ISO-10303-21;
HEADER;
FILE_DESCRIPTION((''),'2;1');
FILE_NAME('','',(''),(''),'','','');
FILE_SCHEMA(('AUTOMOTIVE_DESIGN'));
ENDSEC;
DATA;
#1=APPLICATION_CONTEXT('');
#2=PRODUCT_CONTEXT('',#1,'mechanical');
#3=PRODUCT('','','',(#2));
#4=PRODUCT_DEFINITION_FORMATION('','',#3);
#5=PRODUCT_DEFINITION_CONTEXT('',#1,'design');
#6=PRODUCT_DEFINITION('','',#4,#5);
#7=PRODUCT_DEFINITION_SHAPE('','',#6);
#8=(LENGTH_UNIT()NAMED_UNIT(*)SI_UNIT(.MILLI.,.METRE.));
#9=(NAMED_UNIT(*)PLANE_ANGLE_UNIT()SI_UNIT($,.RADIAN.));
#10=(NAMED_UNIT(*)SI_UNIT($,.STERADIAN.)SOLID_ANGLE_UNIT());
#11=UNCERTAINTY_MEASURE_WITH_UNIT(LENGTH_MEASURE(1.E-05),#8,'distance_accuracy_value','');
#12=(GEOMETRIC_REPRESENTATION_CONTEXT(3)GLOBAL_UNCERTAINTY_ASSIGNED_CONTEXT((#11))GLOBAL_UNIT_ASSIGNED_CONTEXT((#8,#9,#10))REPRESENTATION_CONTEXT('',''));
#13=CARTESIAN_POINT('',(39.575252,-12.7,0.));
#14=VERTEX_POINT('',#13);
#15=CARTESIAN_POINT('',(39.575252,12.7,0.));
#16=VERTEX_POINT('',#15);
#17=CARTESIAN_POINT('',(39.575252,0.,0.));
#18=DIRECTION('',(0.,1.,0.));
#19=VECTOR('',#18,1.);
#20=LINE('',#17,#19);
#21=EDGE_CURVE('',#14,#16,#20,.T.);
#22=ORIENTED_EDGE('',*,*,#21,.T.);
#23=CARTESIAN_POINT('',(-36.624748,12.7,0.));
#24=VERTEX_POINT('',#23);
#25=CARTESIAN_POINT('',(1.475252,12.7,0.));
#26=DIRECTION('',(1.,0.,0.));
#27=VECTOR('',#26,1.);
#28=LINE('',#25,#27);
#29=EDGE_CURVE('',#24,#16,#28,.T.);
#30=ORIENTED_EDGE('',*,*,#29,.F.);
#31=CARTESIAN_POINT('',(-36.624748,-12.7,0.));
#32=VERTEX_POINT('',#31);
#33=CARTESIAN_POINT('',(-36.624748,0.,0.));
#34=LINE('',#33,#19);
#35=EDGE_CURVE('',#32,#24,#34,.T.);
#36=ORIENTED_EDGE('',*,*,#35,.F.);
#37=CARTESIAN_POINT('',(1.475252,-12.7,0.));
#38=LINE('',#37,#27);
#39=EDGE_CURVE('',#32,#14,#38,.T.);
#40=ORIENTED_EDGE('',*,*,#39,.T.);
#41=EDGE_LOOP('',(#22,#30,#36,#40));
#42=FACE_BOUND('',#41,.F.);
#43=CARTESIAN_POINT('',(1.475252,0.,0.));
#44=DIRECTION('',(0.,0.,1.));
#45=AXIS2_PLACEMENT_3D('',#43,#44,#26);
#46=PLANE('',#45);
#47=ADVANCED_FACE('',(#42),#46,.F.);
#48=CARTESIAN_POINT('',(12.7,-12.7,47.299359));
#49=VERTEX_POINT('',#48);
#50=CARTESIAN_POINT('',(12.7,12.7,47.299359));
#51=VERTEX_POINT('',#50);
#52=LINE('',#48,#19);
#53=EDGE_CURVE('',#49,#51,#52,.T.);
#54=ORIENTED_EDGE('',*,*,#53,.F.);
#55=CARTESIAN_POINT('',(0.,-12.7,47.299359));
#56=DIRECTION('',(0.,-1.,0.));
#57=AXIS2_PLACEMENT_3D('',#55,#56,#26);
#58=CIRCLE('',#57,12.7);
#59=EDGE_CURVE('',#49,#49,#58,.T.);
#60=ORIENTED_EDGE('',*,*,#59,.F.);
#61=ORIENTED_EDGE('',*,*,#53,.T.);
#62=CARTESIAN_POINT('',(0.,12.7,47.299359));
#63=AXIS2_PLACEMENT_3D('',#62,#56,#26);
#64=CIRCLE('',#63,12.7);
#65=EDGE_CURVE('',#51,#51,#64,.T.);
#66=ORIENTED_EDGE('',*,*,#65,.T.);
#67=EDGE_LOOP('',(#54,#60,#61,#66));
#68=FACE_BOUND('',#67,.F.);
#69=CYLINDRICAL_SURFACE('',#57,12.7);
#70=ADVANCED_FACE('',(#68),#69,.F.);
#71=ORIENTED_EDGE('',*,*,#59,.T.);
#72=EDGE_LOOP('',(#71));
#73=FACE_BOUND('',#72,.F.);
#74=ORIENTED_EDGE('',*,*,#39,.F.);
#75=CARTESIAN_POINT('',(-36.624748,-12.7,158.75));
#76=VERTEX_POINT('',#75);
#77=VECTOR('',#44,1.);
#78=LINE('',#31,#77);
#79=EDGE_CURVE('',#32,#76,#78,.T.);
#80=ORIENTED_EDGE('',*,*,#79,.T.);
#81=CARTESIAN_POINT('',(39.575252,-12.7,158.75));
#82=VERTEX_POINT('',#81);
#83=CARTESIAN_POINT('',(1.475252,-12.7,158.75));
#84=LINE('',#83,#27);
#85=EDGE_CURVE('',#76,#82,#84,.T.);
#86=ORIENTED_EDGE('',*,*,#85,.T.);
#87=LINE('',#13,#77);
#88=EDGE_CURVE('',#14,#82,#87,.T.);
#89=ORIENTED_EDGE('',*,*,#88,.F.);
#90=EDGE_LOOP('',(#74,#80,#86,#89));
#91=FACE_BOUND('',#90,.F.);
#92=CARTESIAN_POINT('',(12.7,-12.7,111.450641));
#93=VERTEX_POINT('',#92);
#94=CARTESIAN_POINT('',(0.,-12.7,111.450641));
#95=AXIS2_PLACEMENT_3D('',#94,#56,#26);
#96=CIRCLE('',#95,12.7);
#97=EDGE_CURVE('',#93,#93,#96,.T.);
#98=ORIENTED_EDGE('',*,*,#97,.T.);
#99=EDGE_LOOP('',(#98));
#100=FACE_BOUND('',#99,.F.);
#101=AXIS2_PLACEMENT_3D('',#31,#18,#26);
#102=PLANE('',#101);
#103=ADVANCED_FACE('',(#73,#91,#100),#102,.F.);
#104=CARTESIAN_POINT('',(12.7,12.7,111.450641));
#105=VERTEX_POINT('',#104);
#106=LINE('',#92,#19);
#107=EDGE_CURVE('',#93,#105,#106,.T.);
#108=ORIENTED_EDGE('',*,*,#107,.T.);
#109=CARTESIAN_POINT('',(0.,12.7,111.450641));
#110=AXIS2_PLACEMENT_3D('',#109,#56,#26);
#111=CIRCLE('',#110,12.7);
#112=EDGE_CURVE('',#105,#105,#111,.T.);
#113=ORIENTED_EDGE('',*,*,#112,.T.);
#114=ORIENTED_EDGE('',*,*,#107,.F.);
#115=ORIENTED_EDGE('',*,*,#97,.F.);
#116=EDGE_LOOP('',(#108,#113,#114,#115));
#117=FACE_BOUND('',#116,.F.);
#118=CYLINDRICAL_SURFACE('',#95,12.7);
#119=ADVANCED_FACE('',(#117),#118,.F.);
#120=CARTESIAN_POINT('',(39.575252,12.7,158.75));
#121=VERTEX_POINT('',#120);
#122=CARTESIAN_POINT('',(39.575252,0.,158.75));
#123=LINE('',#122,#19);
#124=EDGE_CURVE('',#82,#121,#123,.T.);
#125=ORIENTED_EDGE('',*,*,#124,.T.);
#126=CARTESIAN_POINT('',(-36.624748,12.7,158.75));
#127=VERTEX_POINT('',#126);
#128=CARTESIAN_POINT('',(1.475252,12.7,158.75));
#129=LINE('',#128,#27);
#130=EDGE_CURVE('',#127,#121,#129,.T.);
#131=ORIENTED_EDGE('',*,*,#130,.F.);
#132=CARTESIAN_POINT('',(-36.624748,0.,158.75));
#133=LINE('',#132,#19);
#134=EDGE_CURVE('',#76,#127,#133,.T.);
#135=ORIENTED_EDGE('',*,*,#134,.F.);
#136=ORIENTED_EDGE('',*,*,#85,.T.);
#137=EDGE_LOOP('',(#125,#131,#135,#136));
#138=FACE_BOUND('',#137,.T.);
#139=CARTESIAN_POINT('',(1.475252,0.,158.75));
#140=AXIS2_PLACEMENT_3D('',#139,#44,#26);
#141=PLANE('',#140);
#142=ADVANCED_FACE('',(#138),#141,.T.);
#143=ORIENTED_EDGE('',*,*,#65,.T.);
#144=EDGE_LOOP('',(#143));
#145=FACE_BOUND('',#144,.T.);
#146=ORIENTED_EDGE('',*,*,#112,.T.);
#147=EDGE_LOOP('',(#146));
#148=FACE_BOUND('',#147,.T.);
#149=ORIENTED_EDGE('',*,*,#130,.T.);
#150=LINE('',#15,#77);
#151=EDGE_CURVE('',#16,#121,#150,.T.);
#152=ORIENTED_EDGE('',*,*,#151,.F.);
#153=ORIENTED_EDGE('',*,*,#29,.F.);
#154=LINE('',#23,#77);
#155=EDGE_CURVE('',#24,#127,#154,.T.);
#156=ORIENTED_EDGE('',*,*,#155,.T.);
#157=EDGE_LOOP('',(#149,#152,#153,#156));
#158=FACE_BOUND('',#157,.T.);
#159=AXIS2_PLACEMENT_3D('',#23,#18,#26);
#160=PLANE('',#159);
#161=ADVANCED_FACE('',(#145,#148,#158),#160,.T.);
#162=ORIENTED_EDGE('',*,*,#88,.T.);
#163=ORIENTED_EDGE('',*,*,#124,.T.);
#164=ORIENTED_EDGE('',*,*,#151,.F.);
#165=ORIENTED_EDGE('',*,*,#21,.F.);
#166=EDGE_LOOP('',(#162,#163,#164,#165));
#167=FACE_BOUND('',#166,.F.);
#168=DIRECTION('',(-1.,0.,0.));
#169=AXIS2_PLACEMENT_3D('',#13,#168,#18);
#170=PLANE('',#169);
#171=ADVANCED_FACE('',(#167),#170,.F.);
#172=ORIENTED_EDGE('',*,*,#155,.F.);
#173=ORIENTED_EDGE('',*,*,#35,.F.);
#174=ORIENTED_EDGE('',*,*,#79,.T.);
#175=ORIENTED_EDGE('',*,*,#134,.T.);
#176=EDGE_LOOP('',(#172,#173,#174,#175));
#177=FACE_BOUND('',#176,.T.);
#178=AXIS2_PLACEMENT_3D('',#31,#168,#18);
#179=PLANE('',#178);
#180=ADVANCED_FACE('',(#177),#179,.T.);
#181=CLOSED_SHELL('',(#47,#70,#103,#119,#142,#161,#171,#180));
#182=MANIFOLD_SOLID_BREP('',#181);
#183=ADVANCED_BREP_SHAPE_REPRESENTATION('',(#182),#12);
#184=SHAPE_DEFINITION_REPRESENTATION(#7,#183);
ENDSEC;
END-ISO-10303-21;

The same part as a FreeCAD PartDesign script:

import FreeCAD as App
import Part
import Sketcher
from FreeCAD import Vector
Q = App.Units.Quantity


def add_polygon(sketch, points):
    """Adds a closed chain of lines whose ends are joined by coincident constraints."""
    first, n = sketch.GeometryCount, len(points)
    for a, b in zip(points, points[1:] + points[:1]):
        sketch.addGeometry(Part.LineSegment(App.Vector(*a, 0), App.Vector(*b, 0)), False)
    for i in range(n):
        sketch.addConstraint(Sketcher.Constraint("Coincident", first + i, 2, first + (i + 1) % n, 1))

doc = App.newDocument("Part")
body = doc.addObject("PartDesign::Body", "Body")

sketch1 = doc.addObject("Sketcher::SketchObject", "Sketch")
body.addObject(sketch1)
sketch1.AttachmentSupport = (doc.XY_Plane, [""])
sketch1.MapMode = "FlatFace"
add_polygon(sketch1, [(-37, 13), (-37, -13), (40, -13), (40, 13)])
sketch1.addConstraint([
    Sketcher.Constraint("Vertical", 0),
    Sketcher.Constraint("Horizontal", 1),
    Sketcher.Constraint("Vertical", 2),
    Sketcher.Constraint("Horizontal", 3),
    Sketcher.Constraint("DistanceX", 1, 1, 1, 2, Q("3 in")),
    Sketcher.Constraint("DistanceY", 0, 2, 0, 1, Q("1 in")),
    Sketcher.Constraint("DistanceY", 0, 2, -1, 1, Q("0.5 in")),
    Sketcher.Constraint("DistanceX", 0, 2, -1, 1, 36.624748),
])
pad1 = doc.addObject("PartDesign::Pad", "Pad")
body.addObject(pad1)
pad1.Profile = sketch1
pad1.Length = Q("6.25 in")

sketch2 = doc.addObject("Sketcher::SketchObject", "Sketch001")
body.addObject(sketch2)
sketch2.AttachmentSupport = (doc.XZ_Plane, [""])
sketch2.MapMode = "FlatFace"
sketch2.AttachmentOffset = App.Placement(Vector(0, 0, 0.5 * 25.4), App.Rotation())
sketch2.addGeometry([
    Part.Circle(Vector(0, 111, 0), Vector(0, 0, 1), 13),
    Part.Circle(Vector(0, 47, 0), Vector(0, 0, 1), 13),
], False)
sketch2.addConstraint([
    Sketcher.Constraint("Equal", 0, 1),
    Sketcher.Constraint("PointOnObject", 0, 3, -2),
    Sketcher.Constraint("PointOnObject", 1, 3, -2),
    Sketcher.Constraint("Diameter", 0, Q("1 in")),
    Sketcher.Constraint("DistanceY", -1, 1, 0, 3, 111.450641),
    Sketcher.Constraint("DistanceY", -1, 1, 1, 3, 47.299359),
])
pocket1 = doc.addObject("PartDesign::Pocket", "Pocket")
body.addObject(pocket1)
pocket1.Profile = sketch2
pocket1.Length = Q("1 in")

doc.recompute()
